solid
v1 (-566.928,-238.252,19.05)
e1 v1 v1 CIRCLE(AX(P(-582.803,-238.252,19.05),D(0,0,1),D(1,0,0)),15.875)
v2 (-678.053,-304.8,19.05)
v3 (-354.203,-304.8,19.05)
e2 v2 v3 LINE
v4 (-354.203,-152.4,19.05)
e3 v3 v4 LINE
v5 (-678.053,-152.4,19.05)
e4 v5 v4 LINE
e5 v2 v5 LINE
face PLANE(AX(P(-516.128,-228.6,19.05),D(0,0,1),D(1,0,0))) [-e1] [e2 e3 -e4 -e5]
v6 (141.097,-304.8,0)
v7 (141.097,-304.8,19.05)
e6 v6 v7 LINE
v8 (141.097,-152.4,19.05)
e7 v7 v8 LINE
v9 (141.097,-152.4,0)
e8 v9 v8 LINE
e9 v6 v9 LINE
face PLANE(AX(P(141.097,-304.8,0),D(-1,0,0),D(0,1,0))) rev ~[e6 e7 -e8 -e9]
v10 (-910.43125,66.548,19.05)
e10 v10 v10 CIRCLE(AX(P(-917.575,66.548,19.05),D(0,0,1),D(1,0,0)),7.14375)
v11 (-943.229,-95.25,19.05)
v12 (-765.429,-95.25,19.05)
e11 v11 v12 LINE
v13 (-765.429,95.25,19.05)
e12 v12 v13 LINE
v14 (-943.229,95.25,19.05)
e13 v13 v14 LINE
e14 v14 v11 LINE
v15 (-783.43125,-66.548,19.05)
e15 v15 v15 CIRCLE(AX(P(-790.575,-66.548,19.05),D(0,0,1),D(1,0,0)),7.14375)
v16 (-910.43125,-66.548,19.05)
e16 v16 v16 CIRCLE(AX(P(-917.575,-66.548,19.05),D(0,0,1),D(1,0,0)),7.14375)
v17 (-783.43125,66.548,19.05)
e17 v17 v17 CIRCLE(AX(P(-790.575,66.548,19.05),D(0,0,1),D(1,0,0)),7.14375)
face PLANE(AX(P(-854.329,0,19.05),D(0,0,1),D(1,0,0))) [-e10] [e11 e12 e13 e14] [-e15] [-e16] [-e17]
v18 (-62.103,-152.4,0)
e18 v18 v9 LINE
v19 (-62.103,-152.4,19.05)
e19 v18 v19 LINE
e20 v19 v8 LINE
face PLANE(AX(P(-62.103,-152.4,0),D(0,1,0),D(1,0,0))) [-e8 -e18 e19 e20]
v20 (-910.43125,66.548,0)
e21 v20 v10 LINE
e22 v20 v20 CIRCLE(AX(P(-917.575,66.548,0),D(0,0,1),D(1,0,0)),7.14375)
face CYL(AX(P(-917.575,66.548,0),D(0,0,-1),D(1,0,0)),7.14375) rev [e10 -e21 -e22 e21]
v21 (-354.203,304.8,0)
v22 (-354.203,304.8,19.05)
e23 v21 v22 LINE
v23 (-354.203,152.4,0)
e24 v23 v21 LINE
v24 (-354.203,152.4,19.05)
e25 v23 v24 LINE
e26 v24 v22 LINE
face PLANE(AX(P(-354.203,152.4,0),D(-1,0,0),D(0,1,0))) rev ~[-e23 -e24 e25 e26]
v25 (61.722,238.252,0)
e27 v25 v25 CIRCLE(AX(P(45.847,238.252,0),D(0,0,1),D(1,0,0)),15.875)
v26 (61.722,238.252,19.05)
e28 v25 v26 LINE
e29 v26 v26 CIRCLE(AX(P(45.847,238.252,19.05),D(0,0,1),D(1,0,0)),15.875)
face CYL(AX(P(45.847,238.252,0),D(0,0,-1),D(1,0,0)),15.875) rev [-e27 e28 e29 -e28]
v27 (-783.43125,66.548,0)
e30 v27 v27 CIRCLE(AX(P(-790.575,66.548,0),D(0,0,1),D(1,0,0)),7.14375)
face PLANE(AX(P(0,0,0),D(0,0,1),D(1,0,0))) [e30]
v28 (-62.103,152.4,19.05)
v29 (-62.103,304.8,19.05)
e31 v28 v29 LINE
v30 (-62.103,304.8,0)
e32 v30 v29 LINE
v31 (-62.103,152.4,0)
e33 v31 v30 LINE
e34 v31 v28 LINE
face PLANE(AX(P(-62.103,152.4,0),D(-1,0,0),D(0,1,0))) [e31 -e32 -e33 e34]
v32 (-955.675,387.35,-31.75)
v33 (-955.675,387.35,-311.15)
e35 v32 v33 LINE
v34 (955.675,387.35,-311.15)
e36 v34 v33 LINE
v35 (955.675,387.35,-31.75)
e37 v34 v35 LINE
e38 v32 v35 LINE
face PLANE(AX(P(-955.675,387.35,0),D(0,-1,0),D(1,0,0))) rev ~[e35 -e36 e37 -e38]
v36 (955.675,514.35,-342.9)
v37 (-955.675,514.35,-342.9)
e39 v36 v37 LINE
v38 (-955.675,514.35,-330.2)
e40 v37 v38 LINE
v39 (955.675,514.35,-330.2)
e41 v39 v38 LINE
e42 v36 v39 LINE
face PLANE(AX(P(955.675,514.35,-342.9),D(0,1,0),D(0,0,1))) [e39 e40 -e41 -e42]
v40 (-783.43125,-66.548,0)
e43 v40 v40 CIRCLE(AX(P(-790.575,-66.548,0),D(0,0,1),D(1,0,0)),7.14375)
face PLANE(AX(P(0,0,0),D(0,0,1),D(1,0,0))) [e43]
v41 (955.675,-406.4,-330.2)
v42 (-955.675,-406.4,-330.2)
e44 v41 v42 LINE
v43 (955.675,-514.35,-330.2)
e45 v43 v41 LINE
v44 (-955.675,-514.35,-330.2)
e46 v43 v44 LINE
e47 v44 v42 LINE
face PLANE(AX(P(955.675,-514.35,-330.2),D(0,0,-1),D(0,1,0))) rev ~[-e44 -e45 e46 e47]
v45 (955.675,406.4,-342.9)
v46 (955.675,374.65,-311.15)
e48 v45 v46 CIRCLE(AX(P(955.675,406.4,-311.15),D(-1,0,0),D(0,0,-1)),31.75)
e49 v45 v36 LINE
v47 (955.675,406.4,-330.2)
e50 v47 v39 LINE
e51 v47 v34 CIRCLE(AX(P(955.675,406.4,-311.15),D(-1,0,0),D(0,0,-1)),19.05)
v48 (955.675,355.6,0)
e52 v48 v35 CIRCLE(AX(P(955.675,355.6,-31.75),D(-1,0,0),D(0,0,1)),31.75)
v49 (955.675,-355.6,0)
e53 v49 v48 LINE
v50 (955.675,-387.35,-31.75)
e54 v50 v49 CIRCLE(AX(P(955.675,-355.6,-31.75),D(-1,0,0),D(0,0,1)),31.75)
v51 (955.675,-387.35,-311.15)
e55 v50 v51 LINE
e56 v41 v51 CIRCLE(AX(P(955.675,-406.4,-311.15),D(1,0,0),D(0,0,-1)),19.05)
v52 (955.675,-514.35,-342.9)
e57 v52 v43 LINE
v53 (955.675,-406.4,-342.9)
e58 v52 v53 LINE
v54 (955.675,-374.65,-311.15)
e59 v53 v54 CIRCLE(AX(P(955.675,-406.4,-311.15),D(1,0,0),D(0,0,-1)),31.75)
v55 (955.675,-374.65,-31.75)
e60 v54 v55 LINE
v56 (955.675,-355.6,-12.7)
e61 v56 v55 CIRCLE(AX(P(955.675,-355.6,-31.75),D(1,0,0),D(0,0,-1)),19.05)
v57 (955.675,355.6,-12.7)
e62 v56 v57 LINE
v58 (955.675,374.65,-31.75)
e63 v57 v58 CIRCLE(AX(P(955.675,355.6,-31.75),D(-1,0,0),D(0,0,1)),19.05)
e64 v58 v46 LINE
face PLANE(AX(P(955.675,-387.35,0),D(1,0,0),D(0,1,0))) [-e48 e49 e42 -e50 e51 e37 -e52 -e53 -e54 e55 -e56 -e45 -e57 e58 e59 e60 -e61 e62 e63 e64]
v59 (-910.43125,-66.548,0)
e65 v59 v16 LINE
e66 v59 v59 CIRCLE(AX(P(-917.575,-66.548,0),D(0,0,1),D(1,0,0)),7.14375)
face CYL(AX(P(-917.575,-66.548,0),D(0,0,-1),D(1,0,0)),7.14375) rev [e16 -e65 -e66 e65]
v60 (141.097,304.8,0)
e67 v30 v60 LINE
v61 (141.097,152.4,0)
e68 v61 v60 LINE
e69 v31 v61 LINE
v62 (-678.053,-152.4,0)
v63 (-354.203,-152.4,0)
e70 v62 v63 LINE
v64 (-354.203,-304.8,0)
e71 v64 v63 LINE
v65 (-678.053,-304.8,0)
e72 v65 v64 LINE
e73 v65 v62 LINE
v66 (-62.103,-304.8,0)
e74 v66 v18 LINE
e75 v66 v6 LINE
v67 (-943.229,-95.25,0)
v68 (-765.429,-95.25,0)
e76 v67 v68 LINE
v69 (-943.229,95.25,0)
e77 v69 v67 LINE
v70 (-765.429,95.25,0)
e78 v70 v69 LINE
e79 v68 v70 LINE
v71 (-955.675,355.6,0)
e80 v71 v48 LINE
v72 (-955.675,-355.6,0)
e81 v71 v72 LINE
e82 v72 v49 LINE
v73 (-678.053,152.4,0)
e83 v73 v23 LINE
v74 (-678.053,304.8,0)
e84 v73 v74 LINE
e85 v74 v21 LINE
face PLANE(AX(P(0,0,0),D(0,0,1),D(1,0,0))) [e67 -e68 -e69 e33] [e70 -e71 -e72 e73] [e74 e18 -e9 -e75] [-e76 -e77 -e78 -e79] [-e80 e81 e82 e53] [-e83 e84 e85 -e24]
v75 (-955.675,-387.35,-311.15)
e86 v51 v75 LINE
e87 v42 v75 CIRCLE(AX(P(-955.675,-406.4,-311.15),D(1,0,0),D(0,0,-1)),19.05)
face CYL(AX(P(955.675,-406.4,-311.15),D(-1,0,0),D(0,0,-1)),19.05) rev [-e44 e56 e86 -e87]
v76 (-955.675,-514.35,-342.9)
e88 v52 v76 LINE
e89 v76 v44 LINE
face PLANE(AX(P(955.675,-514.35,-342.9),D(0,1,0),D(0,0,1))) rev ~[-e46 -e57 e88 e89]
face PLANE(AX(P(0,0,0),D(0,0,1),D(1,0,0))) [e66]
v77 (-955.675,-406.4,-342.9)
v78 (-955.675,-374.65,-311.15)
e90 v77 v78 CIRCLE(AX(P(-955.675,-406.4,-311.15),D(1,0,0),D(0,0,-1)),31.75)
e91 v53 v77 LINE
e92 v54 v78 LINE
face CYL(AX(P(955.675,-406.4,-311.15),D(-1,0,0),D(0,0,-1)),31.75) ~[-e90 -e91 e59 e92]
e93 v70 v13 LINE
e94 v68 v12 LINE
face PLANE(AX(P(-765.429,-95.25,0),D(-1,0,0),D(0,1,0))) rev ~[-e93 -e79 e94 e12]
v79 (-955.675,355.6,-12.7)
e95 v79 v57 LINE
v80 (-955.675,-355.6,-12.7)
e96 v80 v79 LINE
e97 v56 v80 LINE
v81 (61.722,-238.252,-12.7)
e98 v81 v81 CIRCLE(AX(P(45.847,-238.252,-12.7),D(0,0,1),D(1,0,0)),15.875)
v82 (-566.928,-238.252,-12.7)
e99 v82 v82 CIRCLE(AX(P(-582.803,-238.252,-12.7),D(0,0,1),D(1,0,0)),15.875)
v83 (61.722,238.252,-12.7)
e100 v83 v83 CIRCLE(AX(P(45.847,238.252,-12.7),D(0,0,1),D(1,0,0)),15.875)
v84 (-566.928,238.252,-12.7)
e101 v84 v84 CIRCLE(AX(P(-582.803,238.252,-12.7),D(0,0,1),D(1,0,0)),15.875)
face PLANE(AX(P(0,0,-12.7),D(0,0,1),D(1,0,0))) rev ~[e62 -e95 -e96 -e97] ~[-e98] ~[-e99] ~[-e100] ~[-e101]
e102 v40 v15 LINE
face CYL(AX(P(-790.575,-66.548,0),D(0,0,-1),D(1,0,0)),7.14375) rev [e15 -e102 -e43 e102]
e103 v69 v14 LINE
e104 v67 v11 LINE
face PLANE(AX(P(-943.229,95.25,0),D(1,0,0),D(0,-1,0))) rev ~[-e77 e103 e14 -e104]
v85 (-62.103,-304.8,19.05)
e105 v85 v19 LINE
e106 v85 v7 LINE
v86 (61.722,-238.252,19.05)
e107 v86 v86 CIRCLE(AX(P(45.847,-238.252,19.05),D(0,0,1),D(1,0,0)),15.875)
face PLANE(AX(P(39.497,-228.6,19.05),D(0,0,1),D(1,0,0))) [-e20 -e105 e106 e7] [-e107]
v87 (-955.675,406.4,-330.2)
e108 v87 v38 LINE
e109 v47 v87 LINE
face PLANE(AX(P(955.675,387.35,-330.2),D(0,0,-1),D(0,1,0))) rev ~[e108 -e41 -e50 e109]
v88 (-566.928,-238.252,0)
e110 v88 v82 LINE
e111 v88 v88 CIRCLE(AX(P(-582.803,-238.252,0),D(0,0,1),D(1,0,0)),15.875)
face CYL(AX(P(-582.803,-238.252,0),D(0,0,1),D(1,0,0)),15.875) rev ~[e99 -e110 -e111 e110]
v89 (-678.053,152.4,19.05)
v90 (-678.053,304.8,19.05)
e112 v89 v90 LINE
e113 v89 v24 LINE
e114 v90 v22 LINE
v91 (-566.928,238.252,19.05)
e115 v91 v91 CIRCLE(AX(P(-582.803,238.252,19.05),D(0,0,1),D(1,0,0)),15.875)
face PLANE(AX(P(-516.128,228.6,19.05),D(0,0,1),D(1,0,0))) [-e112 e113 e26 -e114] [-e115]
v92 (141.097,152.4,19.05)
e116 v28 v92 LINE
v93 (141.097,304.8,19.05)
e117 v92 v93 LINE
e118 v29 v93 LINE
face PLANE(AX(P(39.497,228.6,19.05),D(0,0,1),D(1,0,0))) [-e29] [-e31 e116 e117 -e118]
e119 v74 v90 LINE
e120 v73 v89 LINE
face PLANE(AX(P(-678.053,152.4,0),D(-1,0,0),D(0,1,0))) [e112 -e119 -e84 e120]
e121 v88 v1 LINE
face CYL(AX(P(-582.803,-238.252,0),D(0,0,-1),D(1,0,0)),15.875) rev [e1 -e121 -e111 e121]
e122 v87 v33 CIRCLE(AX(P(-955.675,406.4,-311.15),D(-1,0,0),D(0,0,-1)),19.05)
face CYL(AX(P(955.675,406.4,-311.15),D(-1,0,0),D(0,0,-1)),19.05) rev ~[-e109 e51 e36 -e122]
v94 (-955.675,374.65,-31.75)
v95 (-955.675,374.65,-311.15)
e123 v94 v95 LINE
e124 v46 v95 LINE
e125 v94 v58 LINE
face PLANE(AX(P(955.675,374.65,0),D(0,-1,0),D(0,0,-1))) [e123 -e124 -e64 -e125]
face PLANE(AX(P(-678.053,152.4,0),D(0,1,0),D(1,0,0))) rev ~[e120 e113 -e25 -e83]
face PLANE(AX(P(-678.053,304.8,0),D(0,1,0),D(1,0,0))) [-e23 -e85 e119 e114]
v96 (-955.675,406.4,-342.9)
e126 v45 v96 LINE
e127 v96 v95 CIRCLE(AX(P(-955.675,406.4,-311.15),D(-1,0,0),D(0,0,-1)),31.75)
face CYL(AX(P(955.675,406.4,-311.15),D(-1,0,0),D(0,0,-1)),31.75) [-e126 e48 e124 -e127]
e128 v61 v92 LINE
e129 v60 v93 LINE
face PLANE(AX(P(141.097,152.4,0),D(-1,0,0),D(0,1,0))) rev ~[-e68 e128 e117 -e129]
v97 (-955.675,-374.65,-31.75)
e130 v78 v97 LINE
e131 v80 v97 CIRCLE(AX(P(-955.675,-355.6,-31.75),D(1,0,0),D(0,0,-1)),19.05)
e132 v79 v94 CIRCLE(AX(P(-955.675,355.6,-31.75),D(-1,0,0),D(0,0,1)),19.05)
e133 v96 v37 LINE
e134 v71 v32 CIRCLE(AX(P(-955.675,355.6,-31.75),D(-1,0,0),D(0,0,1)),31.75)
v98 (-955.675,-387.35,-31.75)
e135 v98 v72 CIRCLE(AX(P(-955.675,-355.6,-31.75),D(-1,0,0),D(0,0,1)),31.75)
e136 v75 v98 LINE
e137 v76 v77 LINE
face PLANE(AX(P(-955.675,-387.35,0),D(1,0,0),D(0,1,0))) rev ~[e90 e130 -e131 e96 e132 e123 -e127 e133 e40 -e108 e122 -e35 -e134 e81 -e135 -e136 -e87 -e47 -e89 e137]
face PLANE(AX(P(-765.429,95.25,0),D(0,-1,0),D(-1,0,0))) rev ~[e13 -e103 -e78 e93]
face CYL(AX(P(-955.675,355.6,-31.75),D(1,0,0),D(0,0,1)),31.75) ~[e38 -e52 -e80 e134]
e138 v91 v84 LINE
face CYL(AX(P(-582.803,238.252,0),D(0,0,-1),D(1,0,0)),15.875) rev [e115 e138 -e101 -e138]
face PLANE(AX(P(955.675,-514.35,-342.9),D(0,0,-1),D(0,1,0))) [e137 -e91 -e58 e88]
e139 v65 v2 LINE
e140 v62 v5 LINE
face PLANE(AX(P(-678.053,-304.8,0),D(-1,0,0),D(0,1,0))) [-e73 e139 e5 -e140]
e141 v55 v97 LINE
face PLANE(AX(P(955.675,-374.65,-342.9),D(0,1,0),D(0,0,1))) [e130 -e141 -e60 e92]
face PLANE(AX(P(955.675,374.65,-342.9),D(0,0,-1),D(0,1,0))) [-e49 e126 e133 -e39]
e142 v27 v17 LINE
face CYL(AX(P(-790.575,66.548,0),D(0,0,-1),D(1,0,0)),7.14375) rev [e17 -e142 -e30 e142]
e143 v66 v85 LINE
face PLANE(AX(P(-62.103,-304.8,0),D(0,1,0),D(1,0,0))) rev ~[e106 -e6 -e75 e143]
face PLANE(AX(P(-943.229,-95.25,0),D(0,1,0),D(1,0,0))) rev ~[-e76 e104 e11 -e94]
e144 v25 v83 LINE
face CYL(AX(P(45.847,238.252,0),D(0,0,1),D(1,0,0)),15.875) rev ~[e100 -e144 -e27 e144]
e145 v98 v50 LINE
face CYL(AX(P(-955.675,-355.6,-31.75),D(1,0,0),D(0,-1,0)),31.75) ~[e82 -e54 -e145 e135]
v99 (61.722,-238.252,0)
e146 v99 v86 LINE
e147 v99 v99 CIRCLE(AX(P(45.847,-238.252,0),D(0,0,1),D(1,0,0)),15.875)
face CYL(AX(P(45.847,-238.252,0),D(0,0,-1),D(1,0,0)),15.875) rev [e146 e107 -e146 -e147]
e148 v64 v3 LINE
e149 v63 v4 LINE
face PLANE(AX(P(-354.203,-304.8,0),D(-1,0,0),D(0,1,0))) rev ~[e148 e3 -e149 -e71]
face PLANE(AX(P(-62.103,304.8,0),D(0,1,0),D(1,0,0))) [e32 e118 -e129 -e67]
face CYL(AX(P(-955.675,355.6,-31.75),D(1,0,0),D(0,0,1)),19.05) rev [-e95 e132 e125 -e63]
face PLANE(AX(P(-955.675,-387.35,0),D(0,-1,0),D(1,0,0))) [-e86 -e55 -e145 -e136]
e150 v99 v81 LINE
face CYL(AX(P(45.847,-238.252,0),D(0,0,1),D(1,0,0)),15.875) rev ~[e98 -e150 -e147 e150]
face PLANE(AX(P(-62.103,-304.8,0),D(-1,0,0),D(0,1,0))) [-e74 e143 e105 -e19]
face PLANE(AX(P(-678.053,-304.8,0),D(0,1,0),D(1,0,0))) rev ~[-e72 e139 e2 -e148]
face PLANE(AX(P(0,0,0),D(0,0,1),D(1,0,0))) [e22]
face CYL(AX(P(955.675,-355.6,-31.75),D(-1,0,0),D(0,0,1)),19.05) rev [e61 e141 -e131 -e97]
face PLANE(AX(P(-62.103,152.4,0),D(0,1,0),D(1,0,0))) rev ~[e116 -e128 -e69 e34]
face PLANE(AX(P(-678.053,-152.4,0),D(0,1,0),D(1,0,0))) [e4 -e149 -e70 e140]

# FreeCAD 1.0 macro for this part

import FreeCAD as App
import Part
import Sketcher

V = App.Vector
Q = App.Units.Quantity


def edges_at(feature, points):
    """Names of the edges that pass closest to the given points."""
    edges = feature.Shape.Edges
    near = lambda p: min(range(len(edges)), key=lambda i: edges[i].distToShape(Part.Vertex(*p))[0])
    return sorted({f"Edge{near(p) + 1}" for p in points})


def add_polygon(sketch, points):
    """Adds a closed chain of lines whose ends are joined by coincident constraints."""
    first, n = sketch.GeometryCount, len(points)
    for a, b in zip(points, points[1:] + points[:1]):
        sketch.addGeometry(Part.LineSegment(App.Vector(*a, 0), App.Vector(*b, 0)), False)
    for i in range(n):
        sketch.addConstraint(Sketcher.Constraint("Coincident", first + i, 2, first + (i + 1) % n, 1))

doc = App.newDocument("Part")
body = doc.addObject("PartDesign::Body", "Body")

# Sketch on XY plane
sketch1 = body.newObject("Sketcher::SketchObject", "Sketch")
sketch1.AttachmentSupport = (doc.getObject("XY_Plane"), [""])
sketch1.MapMode = "FlatFace"
add_polygon(sketch1, [(-956, 387), (-956, -387), (956, -387), (956, 387)])  # lines 0-3
sketch1.addGeometry(Part.Circle(V(-583, -238, 0), V(0, 0, 1), 16), False)  # 4
sketch1.addGeometry(Part.Circle(V(46, -238, 0), V(0, 0, 1), 16), False)  # 5
sketch1.addGeometry(Part.Circle(V(-583, 238, 0), V(0, 0, 1), 16), False)  # 6
sketch1.addGeometry(Part.Circle(V(46, 238, 0), V(0, 0, 1), 16), False)  # 7
sketch1.addConstraint([
    Sketcher.Constraint("Vertical", 0),
    Sketcher.Constraint("Horizontal", 1),
    Sketcher.Constraint("Vertical", 2),
    Sketcher.Constraint("Horizontal", 3),
    Sketcher.Constraint("Equal", 4, 5),
    Sketcher.Constraint("Equal", 5, 6),
    Sketcher.Constraint("Equal", 6, 7),
    Sketcher.Constraint("Symmetric", 0, 2, 2, 2, -1, 1),
    Sketcher.Constraint("Symmetric", 4, 3, 6, 3, -1),
    Sketcher.Constraint("Symmetric", 5, 3, 7, 3, -1),
    Sketcher.Constraint("Horizontal", 4, 3, 5, 3),
    Sketcher.Constraint("Diameter", 4, Q("1.25 in")),
    Sketcher.Constraint("DistanceY", 0, 2, 0, 1, Q("30.5 in")),
    Sketcher.Constraint("DistanceX", 1, 1, 1, 2, Q("75.25 in")),
    Sketcher.Constraint("DistanceY", 4, 3, -1, 1, Q("9.38 in")),
    Sketcher.Constraint("DistanceX", 4, 3, 5, 3, Q("24.75 in")),
    Sketcher.Constraint("DistanceX", 0, 2, 4, 3, Q("14.68 in")),
])
pad1 = body.newObject("PartDesign::Pad", "Pad")
pad1.Profile = sketch1
pad1.Length = Q("0.5 in")
pad1.Reversed = True

# Sketch on XY plane
sketch2 = body.newObject("Sketcher::SketchObject", "Sketch001")
sketch2.AttachmentSupport = (doc.getObject("XY_Plane"), [""])
sketch2.MapMode = "FlatFace"
add_polygon(sketch2, [(-678, 305), (-678, 152), (-354, 152), (-354, 305)])  # lines 0-3
sketch2.addGeometry(Part.Circle(V(-583, 238, 0), V(0, 0, 1), 16), False)  # 4
add_polygon(sketch2, [(-678, -152), (-678, -305), (-354, -305), (-354, -152)])  # lines 5-8
sketch2.addGeometry(Part.Circle(V(-583, -238, 0), V(0, 0, 1), 16), False)  # 9
add_polygon(sketch2, [(-62, 305), (-62, 152), (141, 152), (141, 305)])  # lines 10-13
sketch2.addGeometry(Part.Circle(V(46, 238, 0), V(0, 0, 1), 16), False)  # 14
add_polygon(sketch2, [(-62, -152), (-62, -305), (141, -305), (141, -152)])  # lines 15-18
sketch2.addGeometry(Part.Circle(V(46, -238, 0), V(0, 0, 1), 16), False)  # 19
sketch2.addConstraint([
    Sketcher.Constraint("Vertical", 0),
    Sketcher.Constraint("Horizontal", 1),
    Sketcher.Constraint("Vertical", 2),
    Sketcher.Constraint("Horizontal", 3),
    Sketcher.Constraint("Vertical", 5),
    Sketcher.Constraint("Horizontal", 6),
    Sketcher.Constraint("Vertical", 7),
    Sketcher.Constraint("Horizontal", 8),
    Sketcher.Constraint("Vertical", 10),
    Sketcher.Constraint("Horizontal", 11),
    Sketcher.Constraint("Vertical", 12),
    Sketcher.Constraint("Horizontal", 13),
    Sketcher.Constraint("Vertical", 15),
    Sketcher.Constraint("Horizontal", 16),
    Sketcher.Constraint("Vertical", 17),
    Sketcher.Constraint("Horizontal", 18),
    Sketcher.Constraint("Equal", 4, 9),
    Sketcher.Constraint("Equal", 9, 14),
    Sketcher.Constraint("Equal", 14, 19),
    Sketcher.Constraint("Symmetric", 4, 3, 9, 3, -1),
    Sketcher.Constraint("Symmetric", 14, 3, 19, 3, -1),
    Sketcher.Constraint("Symmetric", 3, 2, 5, 2, -1),
    Sketcher.Constraint("Symmetric", 1, 2, 7, 2, -1),
    Sketcher.Constraint("Symmetric", 13, 2, 15, 2, -1),
    Sketcher.Constraint("Symmetric", 11, 2, 17, 2, -1),
    Sketcher.Constraint("Horizontal", 4, 3, 14, 3),
    Sketcher.Constraint("Horizontal", 1, 2, 10, 2),
    Sketcher.Constraint("Horizontal", 3, 2, 12, 2),
    Sketcher.Constraint("Diameter", 4, Q("1.25 in")),
    Sketcher.Constraint("DistanceX", 11, 1, 11, 2, Q("8 in")),
    Sketcher.Constraint("DistanceY", 0, 2, 0, 1, Q("6 in")),
    Sketcher.Constraint("DistanceY", -1, 1, 0, 2, Q("6 in")),
    Sketcher.Constraint("DistanceX", 4, 3, 1, 2, Q("9 in")),
    Sketcher.Constraint("DistanceX", 1, 1, 1, 2, Q("12.75 in")),
    Sketcher.Constraint("DistanceX", 0, 2, 14, 3, Q("28.5 in")),
    Sketcher.Constraint("DistanceX", 1, 2, 10, 2, Q("11.5 in")),
    Sketcher.Constraint("DistanceY", -1, 1, 4, 3, Q("9.38 in")),
    Sketcher.Constraint("DistanceX", 4, 3, -1, 1, Q("22.945 in")),
])
pad2 = body.newObject("PartDesign::Pad", "Pad001")
pad2.Profile = sketch2
pad2.Length = Q("0.75 in")

# Sketch on YZ plane
sketch3 = body.newObject("Sketcher::SketchObject", "Sketch002")
sketch3.AttachmentSupport = (doc.getObject("YZ_Plane"), [""])
sketch3.MapMode = "FlatFace"
sketch3.AttachmentOffset = App.Placement(V(0, 0, 37.625 * 25.4), App.Rotation())
add_polygon(sketch3, [(-387, 0), (-387, -330), (-514, -330), (-514, -343), (-375, -343), (-375, 0)])  # lines 0-5
add_polygon(sketch3, [(375, 0), (375, -343), (514, -343), (514, -330), (387, -330), (387, 0)])  # lines 6-11
sketch3.addConstraint([
    Sketcher.Constraint("Vertical", 0),
    Sketcher.Constraint("Horizontal", 1),
    Sketcher.Constraint("Vertical", 2),
    Sketcher.Constraint("Horizontal", 3),
    Sketcher.Constraint("Vertical", 4),
    Sketcher.Constraint("Horizontal", 5),
    Sketcher.Constraint("Vertical", 6),
    Sketcher.Constraint("Horizontal", 7),
    Sketcher.Constraint("Vertical", 8),
    Sketcher.Constraint("Horizontal", 9),
    Sketcher.Constraint("Vertical", 10),
    Sketcher.Constraint("Horizontal", 11),
    Sketcher.Constraint("Symmetric", 5, 2, 10, 2, -1, 1),
    Sketcher.Constraint("Symmetric", 3, 2, 6, 2, -2),
    Sketcher.Constraint("Symmetric", 1, 2, 8, 2, -2),
    Sketcher.Constraint("PointOnObject", 4, 2, -1),
    Sketcher.Constraint("Equal", 11, 2),
    Sketcher.Constraint("DistanceX", 1, 2, 1, 1, Q("5 in")),
    Sketcher.Constraint("DistanceY", 0, 2, 0, 1, Q("13 in")),
    Sketcher.Constraint("DistanceX", 3, 1, 3, 2, Q("5.5 in")),
    Sketcher.Constraint("DistanceX", 0, 2, 6, 2, Q("30 in")),
])
pad3 = body.newObject("PartDesign::Pad", "Pad002")
pad3.Profile = sketch3
pad3.Length = Q("75.25 in")
pad3.Reversed = True
doc.recompute()

fillet = body.newObject("PartDesign::Fillet", "Fillet")
fillet.Base = (pad3, edges_at(pad3, [
    (0, -387.35, -330.2),
    (0, 387.35, -330.2),
    (0, 374.65, -12.7),
    (0, -374.65, -12.7),
]))
fillet.Radius = Q("0.75 in")
doc.recompute()

fillet2 = body.newObject("PartDesign::Fillet", "Fillet001")
fillet2.Base = (fillet, edges_at(fillet, [
    (0, 374.65, -342.9),
    (0, -374.65, -342.9),
    (0, 387.35, 0),
    (0, -387.35, 0),
]))
fillet2.Radius = Q("1.25 in")

# Sketch on XY plane
sketch4 = body.newObject("Sketcher::SketchObject", "Sketch003")
sketch4.AttachmentSupport = (doc.getObject("XY_Plane"), [""])
sketch4.MapMode = "FlatFace"
add_polygon(sketch4, [(-765, -95), (-765, 95), (-943, 95), (-943, -95)])  # lines 0-3
sketch4.addGeometry(Part.Circle(V(-918, -67, 0), V(0, 0, 1), 7), False)  # 4
sketch4.addGeometry(Part.Circle(V(-791, -67, 0), V(0, 0, 1), 7), False)  # 5
sketch4.addGeometry(Part.Circle(V(-918, 67, 0), V(0, 0, 1), 7), False)  # 6
sketch4.addGeometry(Part.Circle(V(-791, 67, 0), V(0, 0, 1), 7), False)  # 7
sketch4.addConstraint([
    Sketcher.Constraint("Vertical", 0),
    Sketcher.Constraint("Horizontal", 1),
    Sketcher.Constraint("Vertical", 2),
    Sketcher.Constraint("Horizontal", 3),
    Sketcher.Constraint("Equal", 4, 5),
    Sketcher.Constraint("Equal", 5, 6),
    Sketcher.Constraint("Equal", 6, 7),
    Sketcher.Constraint("Symmetric", 4, 3, 6, 3, -1),
    Sketcher.Constraint("Symmetric", 5, 3, 7, 3, -1),
    Sketcher.Constraint("Horizontal", 4, 3, 5, 3),
    Sketcher.Constraint("DistanceX", 1, 2, 1, 1, Q("7 in")),
    Sketcher.Constraint("Diameter", 4, Q("0.5625 in")),
    Sketcher.Constraint("DistanceY", 0, 1, 0, 2, Q("7.5 in")),
    Sketcher.Constraint("DistanceX", 4, 3, 5, 3, Q("5 in")),
    Sketcher.Constraint("DistanceY", 4, 3, -1, 1, Q("2.62 in")),
    Sketcher.Constraint("DistanceY", -1, 1, 0, 2, Q("3.75 in")),
    Sketcher.Constraint("DistanceX", 7, 3, 0, 2, Q("0.99 in")),
    Sketcher.Constraint("DistanceX", 4, 3, -1, 1, Q("36.125 in")),
])
pad4 = body.newObject("PartDesign::Pad", "Pad003")
pad4.Profile = sketch4
pad4.Length = Q("0.75 in")

doc.recompute()
